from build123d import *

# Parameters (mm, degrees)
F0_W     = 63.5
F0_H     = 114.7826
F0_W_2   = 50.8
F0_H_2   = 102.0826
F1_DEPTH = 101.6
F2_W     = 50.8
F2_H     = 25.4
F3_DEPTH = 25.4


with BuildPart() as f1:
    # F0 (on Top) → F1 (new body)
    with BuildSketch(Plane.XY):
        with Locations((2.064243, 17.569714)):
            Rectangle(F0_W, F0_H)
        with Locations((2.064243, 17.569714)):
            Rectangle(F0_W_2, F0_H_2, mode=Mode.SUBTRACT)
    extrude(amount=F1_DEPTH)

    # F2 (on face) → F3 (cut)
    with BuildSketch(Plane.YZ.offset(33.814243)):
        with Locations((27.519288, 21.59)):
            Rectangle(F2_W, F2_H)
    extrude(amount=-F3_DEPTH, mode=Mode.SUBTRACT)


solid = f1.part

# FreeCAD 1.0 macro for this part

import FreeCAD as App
import Part
import Sketcher
from FreeCAD import Vector
Q = App.Units.Quantity

doc = App.newDocument("Part")
body = doc.addObject("PartDesign::Body", "Body")

sketch1 = body.newObject("Sketcher::SketchObject", "Sketch")
sketch1.AttachmentSupport = (doc.getObject("XY_Plane"), [""])
sketch1.MapMode = "FlatFace"
sketch1.addGeometry(Part.LineSegment(Vector(-30, 75, 0), Vector(-30, -40, 0)), False)
sketch1.addGeometry(Part.LineSegment(Vector(-30, -40, 0), Vector(34, -40, 0)), False)
sketch1.addGeometry(Part.LineSegment(Vector(34, -40, 0), Vector(34, 75, 0)), False)
sketch1.addGeometry(Part.LineSegment(Vector(34, 75, 0), Vector(-30, 75, 0)), False)
sketch1.addGeometry(Part.LineSegment(Vector(27, -33, 0), Vector(-23, -33, 0)), False)
sketch1.addGeometry(Part.LineSegment(Vector(-23, -33, 0), Vector(-23, 69, 0)), False)
sketch1.addGeometry(Part.LineSegment(Vector(-23, 69, 0), Vector(27, 69, 0)), False)
sketch1.addGeometry(Part.LineSegment(Vector(27, 69, 0), Vector(27, -33, 0)), False)
sketch1.addConstraint(Sketcher.Constraint("Coincident", 0, 2, 1, 1))
sketch1.addConstraint(Sketcher.Constraint("Coincident", 1, 2, 2, 1))
sketch1.addConstraint(Sketcher.Constraint("Coincident", 2, 2, 3, 1))
sketch1.addConstraint(Sketcher.Constraint("Coincident", 3, 2, 0, 1))
sketch1.addConstraint(Sketcher.Constraint("Coincident", 4, 2, 5, 1))
sketch1.addConstraint(Sketcher.Constraint("Coincident", 5, 2, 6, 1))
sketch1.addConstraint(Sketcher.Constraint("Coincident", 6, 2, 7, 1))
sketch1.addConstraint(Sketcher.Constraint("Coincident", 7, 2, 4, 1))
sketch1.addConstraint(Sketcher.Constraint("Vertical", 0))
sketch1.addConstraint(Sketcher.Constraint("Horizontal", 1))
sketch1.addConstraint(Sketcher.Constraint("Vertical", 2))
sketch1.addConstraint(Sketcher.Constraint("Horizontal", 3))
sketch1.addConstraint(Sketcher.Constraint("Horizontal", 4))
sketch1.addConstraint(Sketcher.Constraint("Vertical", 5))
sketch1.addConstraint(Sketcher.Constraint("Horizontal", 6))
sketch1.addConstraint(Sketcher.Constraint("Vertical", 7))
sketch1.addConstraint(Sketcher.Constraint("DistanceX", 4, 2, 4, 1, Q("2 in")))
sketch1.addConstraint(Sketcher.Constraint("DistanceX", 1, 1, 1, 2, Q("2.5 in")))
sketch1.addConstraint(Sketcher.Constraint("DistanceY", 0, 2, 0, 1, Q("4.519 in")))
sketch1.addConstraint(Sketcher.Constraint("DistanceY", 5, 1, 5, 2, Q("4.019 in")))
sketch1.addConstraint(Sketcher.Constraint("DistanceX", 0, 2, 4, 2, Q("0.25 in")))
sketch1.addConstraint(Sketcher.Constraint("DistanceY", 0, 2, 4, 2, Q("0.25 in")))
sketch1.addConstraint(Sketcher.Constraint("DistanceX", 0, 2, -1, 1, 29.685757))
sketch1.addConstraint(Sketcher.Constraint("DistanceY", 0, 2, -1, 1, 39.821586))
pad1 = body.newObject("PartDesign::Pad", "Pad")
pad1.Profile = sketch1
pad1.Length = Q("4 in")

sketch2 = body.newObject("Sketcher::SketchObject", "Sketch001")
sketch2.AttachmentSupport = (doc.getObject("YZ_Plane"), [""])
sketch2.MapMode = "FlatFace"
sketch2.AttachmentOffset = App.Placement(Vector(0, 0, 33.814243), App.Rotation())
sketch2.addGeometry(Part.LineSegment(Vector(2, 34, 0), Vector(2, 9, 0)), False)
sketch2.addGeometry(Part.LineSegment(Vector(2, 9, 0), Vector(53, 9, 0)), False)
sketch2.addGeometry(Part.LineSegment(Vector(53, 9, 0), Vector(53, 34, 0)), False)
sketch2.addGeometry(Part.LineSegment(Vector(53, 34, 0), Vector(2, 34, 0)), False)
sketch2.addConstraint(Sketcher.Constraint("Coincident", 0, 2, 1, 1))
sketch2.addConstraint(Sketcher.Constraint("Coincident", 1, 2, 2, 1))
sketch2.addConstraint(Sketcher.Constraint("Coincident", 2, 2, 3, 1))
sketch2.addConstraint(Sketcher.Constraint("Coincident", 3, 2, 0, 1))
sketch2.addConstraint(Sketcher.Constraint("Vertical", 0))
sketch2.addConstraint(Sketcher.Constraint("Horizontal", 1))
sketch2.addConstraint(Sketcher.Constraint("Vertical", 2))
sketch2.addConstraint(Sketcher.Constraint("Horizontal", 3))
sketch2.addConstraint(Sketcher.Constraint("DistanceX", 1, 1, 1, 2, Q("2 in")))
sketch2.addConstraint(Sketcher.Constraint("DistanceY", 0, 2, 0, 1, Q("1 in")))
sketch2.addConstraint(Sketcher.Constraint("DistanceY", -1, 1, 0, 2, Q("0.35 in")))
sketch2.addConstraint(Sketcher.Constraint("DistanceX", -1, 1, 0, 2, 2.119288))
pocket1 = body.newObject("PartDesign::Pocket", "Pocket")
pocket1.Profile = sketch2
pocket1.Length = Q("1 in")

doc.recompute()
